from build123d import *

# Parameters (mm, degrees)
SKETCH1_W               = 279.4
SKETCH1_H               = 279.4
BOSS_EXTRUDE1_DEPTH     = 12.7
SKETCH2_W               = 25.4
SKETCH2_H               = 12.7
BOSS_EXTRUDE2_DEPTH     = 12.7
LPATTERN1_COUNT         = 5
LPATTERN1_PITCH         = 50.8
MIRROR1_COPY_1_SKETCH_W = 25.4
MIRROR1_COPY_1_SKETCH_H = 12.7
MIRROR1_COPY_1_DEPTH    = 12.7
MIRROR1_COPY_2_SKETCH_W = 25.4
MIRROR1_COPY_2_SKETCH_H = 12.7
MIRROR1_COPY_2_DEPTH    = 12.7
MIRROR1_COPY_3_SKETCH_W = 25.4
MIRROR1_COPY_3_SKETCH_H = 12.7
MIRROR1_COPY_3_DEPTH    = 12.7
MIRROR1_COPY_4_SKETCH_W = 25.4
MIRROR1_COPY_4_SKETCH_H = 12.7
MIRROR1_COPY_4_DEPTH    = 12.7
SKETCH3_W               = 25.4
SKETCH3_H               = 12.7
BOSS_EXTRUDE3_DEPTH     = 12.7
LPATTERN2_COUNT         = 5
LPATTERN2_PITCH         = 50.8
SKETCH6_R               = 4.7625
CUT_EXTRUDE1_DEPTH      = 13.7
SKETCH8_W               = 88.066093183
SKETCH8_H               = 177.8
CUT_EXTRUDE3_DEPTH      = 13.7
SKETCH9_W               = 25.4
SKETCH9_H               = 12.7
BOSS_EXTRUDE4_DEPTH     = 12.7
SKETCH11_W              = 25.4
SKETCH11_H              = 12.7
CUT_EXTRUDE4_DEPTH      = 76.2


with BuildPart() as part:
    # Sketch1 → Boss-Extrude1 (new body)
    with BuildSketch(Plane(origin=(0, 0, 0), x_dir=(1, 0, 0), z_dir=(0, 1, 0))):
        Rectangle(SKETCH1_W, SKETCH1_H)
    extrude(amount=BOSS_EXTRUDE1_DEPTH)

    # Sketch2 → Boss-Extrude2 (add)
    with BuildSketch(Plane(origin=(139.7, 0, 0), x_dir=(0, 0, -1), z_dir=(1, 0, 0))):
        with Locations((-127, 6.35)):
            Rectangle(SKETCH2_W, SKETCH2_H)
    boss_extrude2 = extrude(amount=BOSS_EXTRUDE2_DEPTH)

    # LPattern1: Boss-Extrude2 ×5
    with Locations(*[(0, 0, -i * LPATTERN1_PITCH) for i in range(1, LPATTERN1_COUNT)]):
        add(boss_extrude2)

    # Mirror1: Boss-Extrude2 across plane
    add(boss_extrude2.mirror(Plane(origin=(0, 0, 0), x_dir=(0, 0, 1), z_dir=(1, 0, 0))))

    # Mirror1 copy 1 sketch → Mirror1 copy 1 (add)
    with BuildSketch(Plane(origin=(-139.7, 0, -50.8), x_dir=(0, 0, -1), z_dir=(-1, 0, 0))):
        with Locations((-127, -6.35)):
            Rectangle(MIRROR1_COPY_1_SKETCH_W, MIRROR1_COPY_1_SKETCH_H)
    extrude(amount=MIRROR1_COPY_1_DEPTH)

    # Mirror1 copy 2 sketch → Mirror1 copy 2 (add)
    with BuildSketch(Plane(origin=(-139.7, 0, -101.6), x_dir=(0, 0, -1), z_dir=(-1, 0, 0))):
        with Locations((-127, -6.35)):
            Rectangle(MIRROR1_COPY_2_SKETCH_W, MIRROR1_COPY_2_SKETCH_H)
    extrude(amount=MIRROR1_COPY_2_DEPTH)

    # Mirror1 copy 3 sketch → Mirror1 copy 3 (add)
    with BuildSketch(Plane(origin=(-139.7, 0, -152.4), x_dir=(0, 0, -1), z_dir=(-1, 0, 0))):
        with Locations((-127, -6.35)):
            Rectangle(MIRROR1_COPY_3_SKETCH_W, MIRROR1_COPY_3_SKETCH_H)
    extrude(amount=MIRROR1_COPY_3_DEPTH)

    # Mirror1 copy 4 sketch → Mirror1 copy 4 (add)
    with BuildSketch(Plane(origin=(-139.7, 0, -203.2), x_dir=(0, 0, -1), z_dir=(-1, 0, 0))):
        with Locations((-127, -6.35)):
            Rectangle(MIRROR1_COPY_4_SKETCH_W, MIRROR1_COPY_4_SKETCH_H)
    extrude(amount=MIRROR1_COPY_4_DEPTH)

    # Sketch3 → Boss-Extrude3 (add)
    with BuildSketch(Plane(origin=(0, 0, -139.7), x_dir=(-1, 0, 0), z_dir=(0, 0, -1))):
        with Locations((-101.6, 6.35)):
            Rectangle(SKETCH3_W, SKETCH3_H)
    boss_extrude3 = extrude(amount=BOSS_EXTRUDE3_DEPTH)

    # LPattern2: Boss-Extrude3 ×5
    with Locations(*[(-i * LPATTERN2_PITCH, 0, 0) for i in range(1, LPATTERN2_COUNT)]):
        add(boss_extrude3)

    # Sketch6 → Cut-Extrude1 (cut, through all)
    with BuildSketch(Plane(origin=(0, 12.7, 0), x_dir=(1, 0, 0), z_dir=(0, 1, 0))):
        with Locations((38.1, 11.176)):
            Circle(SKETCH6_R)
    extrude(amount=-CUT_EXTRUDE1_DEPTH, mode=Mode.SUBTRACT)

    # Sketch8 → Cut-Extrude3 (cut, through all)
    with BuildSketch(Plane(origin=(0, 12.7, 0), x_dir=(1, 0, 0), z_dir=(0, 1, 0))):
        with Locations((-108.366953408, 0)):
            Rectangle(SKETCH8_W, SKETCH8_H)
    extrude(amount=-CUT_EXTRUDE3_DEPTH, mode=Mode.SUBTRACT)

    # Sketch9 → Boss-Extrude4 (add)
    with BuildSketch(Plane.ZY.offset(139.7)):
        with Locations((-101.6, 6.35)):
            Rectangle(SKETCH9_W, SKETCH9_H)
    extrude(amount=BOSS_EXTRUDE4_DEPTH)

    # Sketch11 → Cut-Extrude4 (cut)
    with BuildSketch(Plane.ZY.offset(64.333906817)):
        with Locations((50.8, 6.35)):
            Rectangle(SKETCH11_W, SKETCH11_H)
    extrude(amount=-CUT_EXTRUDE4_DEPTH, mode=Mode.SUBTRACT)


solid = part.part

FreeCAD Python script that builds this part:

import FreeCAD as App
import Part
import Sketcher
Q = App.Units.Quantity

doc = App.newDocument("Part")
body = doc.addObject("PartDesign::Body", "Body")

sketch1 = doc.addObject("Sketcher::SketchObject", "Sketch")
body.addObject(sketch1)
sketch1.AttachmentSupport = (doc.XZ_Plane, [""])
sketch1.MapMode = "FlatFace"
sketch1.addGeometry([
    Part.LineSegment(App.Vector(-140, -140, 0), App.Vector(-140, 140, 0)),
    Part.LineSegment(App.Vector(-140, 140, 0), App.Vector(140, 140, 0)),
    Part.LineSegment(App.Vector(140, 140, 0), App.Vector(140, -140, 0)),
    Part.LineSegment(App.Vector(140, -140, 0), App.Vector(-140, -140, 0)),
], False)
sketch1.addConstraint([
    Sketcher.Constraint("Coincident", 0, 2, 1, 1),
    Sketcher.Constraint("Coincident", 1, 2, 2, 1),
    Sketcher.Constraint("Coincident", 2, 2, 3, 1),
    Sketcher.Constraint("Coincident", 3, 2, 0, 1),
    Sketcher.Constraint("Vertical", 0),
    Sketcher.Constraint("Horizontal", 1),
    Sketcher.Constraint("Vertical", 2),
    Sketcher.Constraint("Horizontal", 3),
    Sketcher.Constraint("Symmetric", 0, 2, 2, 2, -1, 1),
    Sketcher.Constraint("Equal", 3, 0),
    Sketcher.Constraint("DistanceX", 1, 1, 1, 2, Q("11 in")),
])
pad1 = doc.addObject("PartDesign::Pad", "Pad")
body.addObject(pad1)
pad1.Profile = sketch1
pad1.Length = Q("0.5 in")
pad1.Reversed = True

sketch2 = doc.addObject("Sketcher::SketchObject", "Sketch001")
body.addObject(sketch2)
sketch2.AttachmentSupport = (doc.YZ_Plane, [""])
sketch2.MapMode = "FlatFace"
sketch2.AttachmentOffset = App.Placement(App.Vector(0, 0, 5.5 * 25.4), App.Rotation())
sketch2.addGeometry([
    Part.LineSegment(App.Vector(13, 140, 0), App.Vector(0, 140, 0)),
    Part.LineSegment(App.Vector(0, 140, 0), App.Vector(0, 114, 0)),
    Part.LineSegment(App.Vector(0, 114, 0), App.Vector(13, 114, 0)),
    Part.LineSegment(App.Vector(13, 114, 0), App.Vector(13, 140, 0)),
], False)
sketch2.addConstraint([
    Sketcher.Constraint("Coincident", 0, 2, 1, 1),
    Sketcher.Constraint("Coincident", 1, 2, 2, 1),
    Sketcher.Constraint("Coincident", 2, 2, 3, 1),
    Sketcher.Constraint("Coincident", 3, 2, 0, 1),
    Sketcher.Constraint("Horizontal", 0),
    Sketcher.Constraint("Vertical", 1),
    Sketcher.Constraint("Horizontal", 2),
    Sketcher.Constraint("Vertical", 3),
    Sketcher.Constraint("PointOnObject", 0, 2, -2),
    Sketcher.Constraint("DistanceY", 1, 2, 1, 1, Q("1 in")),
    Sketcher.Constraint("DistanceX", 0, 2, 0, 1, Q("0.5 in")),
    Sketcher.Constraint("DistanceY", -1, 1, 0, 2, Q("5.5 in")),
])
pad2 = doc.addObject("PartDesign::Pad", "Pad001")
body.addObject(pad2)
pad2.Profile = sketch2
pad2.Length = Q("0.5 in")
doc.recompute()

linearpattern = doc.addObject("PartDesign::LinearPattern", "LinearPattern")
body.addObject(linearpattern)
linearpattern.Originals = [pad2]
linearpattern.Direction = (doc.Z_Axis, [""])
linearpattern.Mode = "offset"
linearpattern.Offset = Q("2 in")
linearpattern.Occurrences = 5
linearpattern.Reversed = True
body.Tip = linearpattern
doc.recompute()

mirrored = doc.addObject("PartDesign::Mirrored", "Mirrored")
body.addObject(mirrored)
mirrored.Originals = [pad2]
mirrored.MirrorPlane = (doc.YZ_Plane, [""])
body.Tip = mirrored

sketch3 = doc.addObject("Sketcher::SketchObject", "Sketch002")
body.addObject(sketch3)
sketch3.AttachmentSupport = (doc.YZ_Plane, [""])
sketch3.MapMode = "FlatFace"
sketch3.AttachmentOffset = App.Placement(App.Vector(0, 0, -5.5 * 25.4), App.Rotation())
sketch3.addGeometry([
    Part.LineSegment(App.Vector(0, 89, 0), App.Vector(13, 89, 0)),
    Part.LineSegment(App.Vector(13, 89, 0), App.Vector(13, 64, 0)),
    Part.LineSegment(App.Vector(13, 64, 0), App.Vector(0, 64, 0)),
    Part.LineSegment(App.Vector(0, 64, 0), App.Vector(0, 89, 0)),
], False)
sketch3.addConstraint([
    Sketcher.Constraint("Coincident", 0, 2, 1, 1),
    Sketcher.Constraint("Coincident", 1, 2, 2, 1),
    Sketcher.Constraint("Coincident", 2, 2, 3, 1),
    Sketcher.Constraint("Coincident", 3, 2, 0, 1),
    Sketcher.Constraint("Horizontal", 0),
    Sketcher.Constraint("Vertical", 1),
    Sketcher.Constraint("Horizontal", 2),
    Sketcher.Constraint("Vertical", 3),
    Sketcher.Constraint("PointOnObject", 2, 2, -2),
    Sketcher.Constraint("DistanceY", 1, 2, 1, 1, Q("1 in")),
    Sketcher.Constraint("DistanceX", 0, 1, 0, 2, Q("0.5 in")),
    Sketcher.Constraint("DistanceY", -1, 1, 0, 2, Q("3.5 in")),
])
pad3 = doc.addObject("PartDesign::Pad", "Pad002")
body.addObject(pad3)
pad3.Profile = sketch3
pad3.Length = Q("0.5 in")
pad3.Reversed = True

sketch4 = doc.addObject("Sketcher::SketchObject", "Sketch003")
body.addObject(sketch4)
sketch4.AttachmentSupport = (doc.YZ_Plane, [""])
sketch4.MapMode = "FlatFace"
sketch4.AttachmentOffset = App.Placement(App.Vector(0, 0, -5.5 * 25.4), App.Rotation())
sketch4.addGeometry([
    Part.LineSegment(App.Vector(0, 38, 0), App.Vector(13, 38, 0)),
    Part.LineSegment(App.Vector(13, 38, 0), App.Vector(13, 13, 0)),
    Part.LineSegment(App.Vector(13, 13, 0), App.Vector(0, 13, 0)),
    Part.LineSegment(App.Vector(0, 13, 0), App.Vector(0, 38, 0)),
], False)
sketch4.addConstraint([
    Sketcher.Constraint("Coincident", 0, 2, 1, 1),
    Sketcher.Constraint("Coincident", 1, 2, 2, 1),
    Sketcher.Constraint("Coincident", 2, 2, 3, 1),
    Sketcher.Constraint("Coincident", 3, 2, 0, 1),
    Sketcher.Constraint("Horizontal", 0),
    Sketcher.Constraint("Vertical", 1),
    Sketcher.Constraint("Horizontal", 2),
    Sketcher.Constraint("Vertical", 3),
    Sketcher.Constraint("PointOnObject", 2, 2, -2),
    Sketcher.Constraint("DistanceY", 1, 2, 1, 1, Q("1 in")),
    Sketcher.Constraint("DistanceX", 0, 1, 0, 2, Q("0.5 in")),
    Sketcher.Constraint("DistanceY", -1, 1, 0, 2, Q("1.5 in")),
])
pad4 = doc.addObject("PartDesign::Pad", "Pad003")
body.addObject(pad4)
pad4.Profile = sketch4
pad4.Length = Q("0.5 in")
pad4.Reversed = True

sketch5 = doc.addObject("Sketcher::SketchObject", "Sketch004")
body.addObject(sketch5)
sketch5.AttachmentSupport = (doc.YZ_Plane, [""])
sketch5.MapMode = "FlatFace"
sketch5.AttachmentOffset = App.Placement(App.Vector(0, 0, -5.5 * 25.4), App.Rotation())
sketch5.addGeometry([
    Part.LineSegment(App.Vector(0, -13, 0), App.Vector(13, -13, 0)),
    Part.LineSegment(App.Vector(13, -13, 0), App.Vector(13, -38, 0)),
    Part.LineSegment(App.Vector(13, -38, 0), App.Vector(0, -38, 0)),
    Part.LineSegment(App.Vector(0, -38, 0), App.Vector(0, -13, 0)),
], False)
sketch5.addConstraint([
    Sketcher.Constraint("Coincident", 0, 2, 1, 1),
    Sketcher.Constraint("Coincident", 1, 2, 2, 1),
    Sketcher.Constraint("Coincident", 2, 2, 3, 1),
    Sketcher.Constraint("Coincident", 3, 2, 0, 1),
    Sketcher.Constraint("Horizontal", 0),
    Sketcher.Constraint("Vertical", 1),
    Sketcher.Constraint("Horizontal", 2),
    Sketcher.Constraint("Vertical", 3),
    Sketcher.Constraint("PointOnObject", 2, 2, -2),
    Sketcher.Constraint("DistanceY", 1, 2, 1, 1, Q("1 in")),
    Sketcher.Constraint("DistanceX", 0, 1, 0, 2, Q("0.5 in")),
    Sketcher.Constraint("DistanceY", 0, 2, -1, 1, Q("0.5 in")),
])
pad5 = doc.addObject("PartDesign::Pad", "Pad004")
body.addObject(pad5)
pad5.Profile = sketch5
pad5.Length = Q("0.5 in")
pad5.Reversed = True

sketch6 = doc.addObject("Sketcher::SketchObject", "Sketch005")
body.addObject(sketch6)
sketch6.AttachmentSupport = (doc.YZ_Plane, [""])
sketch6.MapMode = "FlatFace"
sketch6.AttachmentOffset = App.Placement(App.Vector(0, 0, -5.5 * 25.4), App.Rotation())
sketch6.addGeometry([
    Part.LineSegment(App.Vector(0, -64, 0), App.Vector(13, -64, 0)),
    Part.LineSegment(App.Vector(13, -64, 0), App.Vector(13, -89, 0)),
    Part.LineSegment(App.Vector(13, -89, 0), App.Vector(0, -89, 0)),
    Part.LineSegment(App.Vector(0, -89, 0), App.Vector(0, -64, 0)),
], False)
sketch6.addConstraint([
    Sketcher.Constraint("Coincident", 0, 2, 1, 1),
    Sketcher.Constraint("Coincident", 1, 2, 2, 1),
    Sketcher.Constraint("Coincident", 2, 2, 3, 1),
    Sketcher.Constraint("Coincident", 3, 2, 0, 1),
    Sketcher.Constraint("Horizontal", 0),
    Sketcher.Constraint("Vertical", 1),
    Sketcher.Constraint("Horizontal", 2),
    Sketcher.Constraint("Vertical", 3),
    Sketcher.Constraint("PointOnObject", 2, 2, -2),
    Sketcher.Constraint("DistanceY", 1, 2, 1, 1, Q("1 in")),
    Sketcher.Constraint("DistanceX", 0, 1, 0, 2, Q("0.5 in")),
    Sketcher.Constraint("DistanceY", 0, 2, -1, 1, Q("2.5 in")),
])
pad6 = doc.addObject("PartDesign::Pad", "Pad005")
body.addObject(pad6)
pad6.Profile = sketch6
pad6.Length = Q("0.5 in")
pad6.Reversed = True

sketch7 = doc.addObject("Sketcher::SketchObject", "Sketch006")
body.addObject(sketch7)
sketch7.AttachmentSupport = (doc.XY_Plane, [""])
sketch7.MapMode = "FlatFace"
sketch7.AttachmentOffset = App.Placement(App.Vector(0, 0, -5.5 * 25.4), App.Rotation())
sketch7.addGeometry([
    Part.LineSegment(App.Vector(114, 13, 0), App.Vector(114, 0, 0)),
    Part.LineSegment(App.Vector(114, 0, 0), App.Vector(89, 0, 0)),
    Part.LineSegment(App.Vector(89, 0, 0), App.Vector(89, 13, 0)),
    Part.LineSegment(App.Vector(89, 13, 0), App.Vector(114, 13, 0)),
], False)
sketch7.addConstraint([
    Sketcher.Constraint("Coincident", 0, 2, 1, 1),
    Sketcher.Constraint("Coincident", 1, 2, 2, 1),
    Sketcher.Constraint("Coincident", 2, 2, 3, 1),
    Sketcher.Constraint("Coincident", 3, 2, 0, 1),
    Sketcher.Constraint("Vertical", 0),
    Sketcher.Constraint("Horizontal", 1),
    Sketcher.Constraint("Vertical", 2),
    Sketcher.Constraint("Horizontal", 3),
    Sketcher.Constraint("PointOnObject", 0, 2, -1),
    Sketcher.Constraint("DistanceX", 1, 2, 1, 1, Q("1 in")),
    Sketcher.Constraint("DistanceY", 0, 2, 0, 1, Q("0.5 in")),
    Sketcher.Constraint("DistanceX", -1, 1, 0, 2, Q("4.5 in")),
])
pad7 = doc.addObject("PartDesign::Pad", "Pad006")
body.addObject(pad7)
pad7.Profile = sketch7
pad7.Length = Q("0.5 in")
pad7.Reversed = True
doc.recompute()

linearpattern2 = doc.addObject("PartDesign::LinearPattern", "LinearPattern001")
body.addObject(linearpattern2)
linearpattern2.Originals = [pad7]
linearpattern2.Direction = (doc.X_Axis, [""])
linearpattern2.Mode = "offset"
linearpattern2.Offset = Q("2 in")
linearpattern2.Occurrences = 5
linearpattern2.Reversed = True
body.Tip = linearpattern2

sketch8 = doc.addObject("Sketcher::SketchObject", "Sketch007")
body.addObject(sketch8)
sketch8.AttachmentSupport = (doc.XZ_Plane, [""])
sketch8.MapMode = "FlatFace"
sketch8.AttachmentOffset = App.Placement(App.Vector(0, 0, -0.5 * 25.4), App.Rotation())
sketch8.addGeometry(Part.Circle(App.Vector(38.1, -11.2, 0), App.Vector(0, 0, 1), 4.8), False)
sketch8.addConstraint([
    Sketcher.Constraint("Diameter", 0, Q("0.375 in")),
    Sketcher.Constraint("DistanceX", -1, 1, 0, 3, Q("1.5 in")),
    Sketcher.Constraint("DistanceY", 0, 3, -1, 1, Q("0.44 in")),
])
pocket1 = doc.addObject("PartDesign::Pocket", "Pocket")
body.addObject(pocket1)
pocket1.Profile = sketch8
pocket1.Type = "ThroughAll"
pocket1.Reversed = True

sketch9 = doc.addObject("Sketcher::SketchObject", "Sketch008")
body.addObject(sketch9)
sketch9.AttachmentSupport = (doc.XZ_Plane, [""])
sketch9.MapMode = "FlatFace"
sketch9.AttachmentOffset = App.Placement(App.Vector(0, 0, -0.5 * 25.4), App.Rotation())
sketch9.addGeometry([
    Part.LineSegment(App.Vector(-152, -89, 0), App.Vector(-152, 89, 0)),
    Part.LineSegment(App.Vector(-152, 89, 0), App.Vector(-64, 89, 0)),
    Part.LineSegment(App.Vector(-64, 89, 0), App.Vector(-64, -89, 0)),
    Part.LineSegment(App.Vector(-64, -89, 0), App.Vector(-152, -89, 0)),
], False)
sketch9.addConstraint([
    Sketcher.Constraint("Coincident", 0, 2, 1, 1),
    Sketcher.Constraint("Coincident", 1, 2, 2, 1),
    Sketcher.Constraint("Coincident", 2, 2, 3, 1),
    Sketcher.Constraint("Coincident", 3, 2, 0, 1),
    Sketcher.Constraint("Vertical", 0),
    Sketcher.Constraint("Horizontal", 1),
    Sketcher.Constraint("Vertical", 2),
    Sketcher.Constraint("Horizontal", 3),
    Sketcher.Constraint("DistanceY", 0, 1, 0, 2, Q("7 in")),
    Sketcher.Constraint("DistanceX", 0, 2, -1, 1, Q("6 in")),
    Sketcher.Constraint("DistanceY", -1, 1, 0, 2, Q("3.5 in")),
    Sketcher.Constraint("DistanceX", 1, 1, 1, 2, 88.066093),
])
pocket2 = doc.addObject("PartDesign::Pocket", "Pocket001")
body.addObject(pocket2)
pocket2.Profile = sketch9
pocket2.Type = "ThroughAll"
pocket2.Reversed = True

sketch10 = doc.addObject("Sketcher::SketchObject", "Sketch009")
body.addObject(sketch10)
sketch10.AttachmentSupport = (doc.YZ_Plane, [""])
sketch10.MapMode = "FlatFace"
sketch10.AttachmentOffset = App.Placement(App.Vector(0, 0, -5.5 * 25.4), App.Rotation())
sketch10.addGeometry([
    Part.LineSegment(App.Vector(13, -114, 0), App.Vector(0, -114, 0)),
    Part.LineSegment(App.Vector(0, -114, 0), App.Vector(0, -89, 0)),
    Part.LineSegment(App.Vector(0, -89, 0), App.Vector(13, -89, 0)),
    Part.LineSegment(App.Vector(13, -89, 0), App.Vector(13, -114, 0)),
], False)
sketch10.addConstraint([
    Sketcher.Constraint("Coincident", 0, 2, 1, 1),
    Sketcher.Constraint("Coincident", 1, 2, 2, 1),
    Sketcher.Constraint("Coincident", 2, 2, 3, 1),
    Sketcher.Constraint("Coincident", 3, 2, 0, 1),
    Sketcher.Constraint("Horizontal", 0),
    Sketcher.Constraint("Vertical", 1),
    Sketcher.Constraint("Horizontal", 2),
    Sketcher.Constraint("Vertical", 3),
    Sketcher.Constraint("PointOnObject", 0, 2, -2),
    Sketcher.Constraint("DistanceY", 1, 1, 1, 2, Q("1 in")),
    Sketcher.Constraint("DistanceX", 0, 2, 0, 1, Q("0.5 in")),
    Sketcher.Constraint("DistanceY", 0, 2, -1, 1, Q("4.5 in")),
])
pad8 = doc.addObject("PartDesign::Pad", "Pad007")
body.addObject(pad8)
pad8.Profile = sketch10
pad8.Length = Q("0.5 in")
pad8.Reversed = True

sketch11 = doc.addObject("Sketcher::SketchObject", "Sketch010")
body.addObject(sketch11)
sketch11.AttachmentSupport = (doc.YZ_Plane, [""])
sketch11.MapMode = "FlatFace"
sketch11.AttachmentOffset = App.Placement(App.Vector(0, 0, -64.333907), App.Rotation())
sketch11.addGeometry([
    Part.LineSegment(App.Vector(13, 38, 0), App.Vector(0, 38, 0)),
    Part.LineSegment(App.Vector(0, 38, 0), App.Vector(0, 64, 0)),
    Part.LineSegment(App.Vector(0, 64, 0), App.Vector(13, 64, 0)),
    Part.LineSegment(App.Vector(13, 64, 0), App.Vector(13, 38, 0)),
], False)
sketch11.addConstraint([
    Sketcher.Constraint("Coincident", 0, 2, 1, 1),
    Sketcher.Constraint("Coincident", 1, 2, 2, 1),
    Sketcher.Constraint("Coincident", 2, 2, 3, 1),
    Sketcher.Constraint("Coincident", 3, 2, 0, 1),
    Sketcher.Constraint("Horizontal", 0),
    Sketcher.Constraint("Vertical", 1),
    Sketcher.Constraint("Horizontal", 2),
    Sketcher.Constraint("Vertical", 3),
    Sketcher.Constraint("PointOnObject", 0, 2, -2),
    Sketcher.Constraint("DistanceY", 1, 1, 1, 2, Q("1 in")),
    Sketcher.Constraint("DistanceX", 0, 2, 0, 1, Q("0.5 in")),
    Sketcher.Constraint("DistanceY", -1, 1, 0, 2, Q("1.5 in")),
])
pocket3 = doc.addObject("PartDesign::Pocket", "Pocket002")
body.addObject(pocket3)
pocket3.Profile = sketch11
pocket3.Length = Q("3 in")
pocket3.Reversed = True

doc.recompute()
